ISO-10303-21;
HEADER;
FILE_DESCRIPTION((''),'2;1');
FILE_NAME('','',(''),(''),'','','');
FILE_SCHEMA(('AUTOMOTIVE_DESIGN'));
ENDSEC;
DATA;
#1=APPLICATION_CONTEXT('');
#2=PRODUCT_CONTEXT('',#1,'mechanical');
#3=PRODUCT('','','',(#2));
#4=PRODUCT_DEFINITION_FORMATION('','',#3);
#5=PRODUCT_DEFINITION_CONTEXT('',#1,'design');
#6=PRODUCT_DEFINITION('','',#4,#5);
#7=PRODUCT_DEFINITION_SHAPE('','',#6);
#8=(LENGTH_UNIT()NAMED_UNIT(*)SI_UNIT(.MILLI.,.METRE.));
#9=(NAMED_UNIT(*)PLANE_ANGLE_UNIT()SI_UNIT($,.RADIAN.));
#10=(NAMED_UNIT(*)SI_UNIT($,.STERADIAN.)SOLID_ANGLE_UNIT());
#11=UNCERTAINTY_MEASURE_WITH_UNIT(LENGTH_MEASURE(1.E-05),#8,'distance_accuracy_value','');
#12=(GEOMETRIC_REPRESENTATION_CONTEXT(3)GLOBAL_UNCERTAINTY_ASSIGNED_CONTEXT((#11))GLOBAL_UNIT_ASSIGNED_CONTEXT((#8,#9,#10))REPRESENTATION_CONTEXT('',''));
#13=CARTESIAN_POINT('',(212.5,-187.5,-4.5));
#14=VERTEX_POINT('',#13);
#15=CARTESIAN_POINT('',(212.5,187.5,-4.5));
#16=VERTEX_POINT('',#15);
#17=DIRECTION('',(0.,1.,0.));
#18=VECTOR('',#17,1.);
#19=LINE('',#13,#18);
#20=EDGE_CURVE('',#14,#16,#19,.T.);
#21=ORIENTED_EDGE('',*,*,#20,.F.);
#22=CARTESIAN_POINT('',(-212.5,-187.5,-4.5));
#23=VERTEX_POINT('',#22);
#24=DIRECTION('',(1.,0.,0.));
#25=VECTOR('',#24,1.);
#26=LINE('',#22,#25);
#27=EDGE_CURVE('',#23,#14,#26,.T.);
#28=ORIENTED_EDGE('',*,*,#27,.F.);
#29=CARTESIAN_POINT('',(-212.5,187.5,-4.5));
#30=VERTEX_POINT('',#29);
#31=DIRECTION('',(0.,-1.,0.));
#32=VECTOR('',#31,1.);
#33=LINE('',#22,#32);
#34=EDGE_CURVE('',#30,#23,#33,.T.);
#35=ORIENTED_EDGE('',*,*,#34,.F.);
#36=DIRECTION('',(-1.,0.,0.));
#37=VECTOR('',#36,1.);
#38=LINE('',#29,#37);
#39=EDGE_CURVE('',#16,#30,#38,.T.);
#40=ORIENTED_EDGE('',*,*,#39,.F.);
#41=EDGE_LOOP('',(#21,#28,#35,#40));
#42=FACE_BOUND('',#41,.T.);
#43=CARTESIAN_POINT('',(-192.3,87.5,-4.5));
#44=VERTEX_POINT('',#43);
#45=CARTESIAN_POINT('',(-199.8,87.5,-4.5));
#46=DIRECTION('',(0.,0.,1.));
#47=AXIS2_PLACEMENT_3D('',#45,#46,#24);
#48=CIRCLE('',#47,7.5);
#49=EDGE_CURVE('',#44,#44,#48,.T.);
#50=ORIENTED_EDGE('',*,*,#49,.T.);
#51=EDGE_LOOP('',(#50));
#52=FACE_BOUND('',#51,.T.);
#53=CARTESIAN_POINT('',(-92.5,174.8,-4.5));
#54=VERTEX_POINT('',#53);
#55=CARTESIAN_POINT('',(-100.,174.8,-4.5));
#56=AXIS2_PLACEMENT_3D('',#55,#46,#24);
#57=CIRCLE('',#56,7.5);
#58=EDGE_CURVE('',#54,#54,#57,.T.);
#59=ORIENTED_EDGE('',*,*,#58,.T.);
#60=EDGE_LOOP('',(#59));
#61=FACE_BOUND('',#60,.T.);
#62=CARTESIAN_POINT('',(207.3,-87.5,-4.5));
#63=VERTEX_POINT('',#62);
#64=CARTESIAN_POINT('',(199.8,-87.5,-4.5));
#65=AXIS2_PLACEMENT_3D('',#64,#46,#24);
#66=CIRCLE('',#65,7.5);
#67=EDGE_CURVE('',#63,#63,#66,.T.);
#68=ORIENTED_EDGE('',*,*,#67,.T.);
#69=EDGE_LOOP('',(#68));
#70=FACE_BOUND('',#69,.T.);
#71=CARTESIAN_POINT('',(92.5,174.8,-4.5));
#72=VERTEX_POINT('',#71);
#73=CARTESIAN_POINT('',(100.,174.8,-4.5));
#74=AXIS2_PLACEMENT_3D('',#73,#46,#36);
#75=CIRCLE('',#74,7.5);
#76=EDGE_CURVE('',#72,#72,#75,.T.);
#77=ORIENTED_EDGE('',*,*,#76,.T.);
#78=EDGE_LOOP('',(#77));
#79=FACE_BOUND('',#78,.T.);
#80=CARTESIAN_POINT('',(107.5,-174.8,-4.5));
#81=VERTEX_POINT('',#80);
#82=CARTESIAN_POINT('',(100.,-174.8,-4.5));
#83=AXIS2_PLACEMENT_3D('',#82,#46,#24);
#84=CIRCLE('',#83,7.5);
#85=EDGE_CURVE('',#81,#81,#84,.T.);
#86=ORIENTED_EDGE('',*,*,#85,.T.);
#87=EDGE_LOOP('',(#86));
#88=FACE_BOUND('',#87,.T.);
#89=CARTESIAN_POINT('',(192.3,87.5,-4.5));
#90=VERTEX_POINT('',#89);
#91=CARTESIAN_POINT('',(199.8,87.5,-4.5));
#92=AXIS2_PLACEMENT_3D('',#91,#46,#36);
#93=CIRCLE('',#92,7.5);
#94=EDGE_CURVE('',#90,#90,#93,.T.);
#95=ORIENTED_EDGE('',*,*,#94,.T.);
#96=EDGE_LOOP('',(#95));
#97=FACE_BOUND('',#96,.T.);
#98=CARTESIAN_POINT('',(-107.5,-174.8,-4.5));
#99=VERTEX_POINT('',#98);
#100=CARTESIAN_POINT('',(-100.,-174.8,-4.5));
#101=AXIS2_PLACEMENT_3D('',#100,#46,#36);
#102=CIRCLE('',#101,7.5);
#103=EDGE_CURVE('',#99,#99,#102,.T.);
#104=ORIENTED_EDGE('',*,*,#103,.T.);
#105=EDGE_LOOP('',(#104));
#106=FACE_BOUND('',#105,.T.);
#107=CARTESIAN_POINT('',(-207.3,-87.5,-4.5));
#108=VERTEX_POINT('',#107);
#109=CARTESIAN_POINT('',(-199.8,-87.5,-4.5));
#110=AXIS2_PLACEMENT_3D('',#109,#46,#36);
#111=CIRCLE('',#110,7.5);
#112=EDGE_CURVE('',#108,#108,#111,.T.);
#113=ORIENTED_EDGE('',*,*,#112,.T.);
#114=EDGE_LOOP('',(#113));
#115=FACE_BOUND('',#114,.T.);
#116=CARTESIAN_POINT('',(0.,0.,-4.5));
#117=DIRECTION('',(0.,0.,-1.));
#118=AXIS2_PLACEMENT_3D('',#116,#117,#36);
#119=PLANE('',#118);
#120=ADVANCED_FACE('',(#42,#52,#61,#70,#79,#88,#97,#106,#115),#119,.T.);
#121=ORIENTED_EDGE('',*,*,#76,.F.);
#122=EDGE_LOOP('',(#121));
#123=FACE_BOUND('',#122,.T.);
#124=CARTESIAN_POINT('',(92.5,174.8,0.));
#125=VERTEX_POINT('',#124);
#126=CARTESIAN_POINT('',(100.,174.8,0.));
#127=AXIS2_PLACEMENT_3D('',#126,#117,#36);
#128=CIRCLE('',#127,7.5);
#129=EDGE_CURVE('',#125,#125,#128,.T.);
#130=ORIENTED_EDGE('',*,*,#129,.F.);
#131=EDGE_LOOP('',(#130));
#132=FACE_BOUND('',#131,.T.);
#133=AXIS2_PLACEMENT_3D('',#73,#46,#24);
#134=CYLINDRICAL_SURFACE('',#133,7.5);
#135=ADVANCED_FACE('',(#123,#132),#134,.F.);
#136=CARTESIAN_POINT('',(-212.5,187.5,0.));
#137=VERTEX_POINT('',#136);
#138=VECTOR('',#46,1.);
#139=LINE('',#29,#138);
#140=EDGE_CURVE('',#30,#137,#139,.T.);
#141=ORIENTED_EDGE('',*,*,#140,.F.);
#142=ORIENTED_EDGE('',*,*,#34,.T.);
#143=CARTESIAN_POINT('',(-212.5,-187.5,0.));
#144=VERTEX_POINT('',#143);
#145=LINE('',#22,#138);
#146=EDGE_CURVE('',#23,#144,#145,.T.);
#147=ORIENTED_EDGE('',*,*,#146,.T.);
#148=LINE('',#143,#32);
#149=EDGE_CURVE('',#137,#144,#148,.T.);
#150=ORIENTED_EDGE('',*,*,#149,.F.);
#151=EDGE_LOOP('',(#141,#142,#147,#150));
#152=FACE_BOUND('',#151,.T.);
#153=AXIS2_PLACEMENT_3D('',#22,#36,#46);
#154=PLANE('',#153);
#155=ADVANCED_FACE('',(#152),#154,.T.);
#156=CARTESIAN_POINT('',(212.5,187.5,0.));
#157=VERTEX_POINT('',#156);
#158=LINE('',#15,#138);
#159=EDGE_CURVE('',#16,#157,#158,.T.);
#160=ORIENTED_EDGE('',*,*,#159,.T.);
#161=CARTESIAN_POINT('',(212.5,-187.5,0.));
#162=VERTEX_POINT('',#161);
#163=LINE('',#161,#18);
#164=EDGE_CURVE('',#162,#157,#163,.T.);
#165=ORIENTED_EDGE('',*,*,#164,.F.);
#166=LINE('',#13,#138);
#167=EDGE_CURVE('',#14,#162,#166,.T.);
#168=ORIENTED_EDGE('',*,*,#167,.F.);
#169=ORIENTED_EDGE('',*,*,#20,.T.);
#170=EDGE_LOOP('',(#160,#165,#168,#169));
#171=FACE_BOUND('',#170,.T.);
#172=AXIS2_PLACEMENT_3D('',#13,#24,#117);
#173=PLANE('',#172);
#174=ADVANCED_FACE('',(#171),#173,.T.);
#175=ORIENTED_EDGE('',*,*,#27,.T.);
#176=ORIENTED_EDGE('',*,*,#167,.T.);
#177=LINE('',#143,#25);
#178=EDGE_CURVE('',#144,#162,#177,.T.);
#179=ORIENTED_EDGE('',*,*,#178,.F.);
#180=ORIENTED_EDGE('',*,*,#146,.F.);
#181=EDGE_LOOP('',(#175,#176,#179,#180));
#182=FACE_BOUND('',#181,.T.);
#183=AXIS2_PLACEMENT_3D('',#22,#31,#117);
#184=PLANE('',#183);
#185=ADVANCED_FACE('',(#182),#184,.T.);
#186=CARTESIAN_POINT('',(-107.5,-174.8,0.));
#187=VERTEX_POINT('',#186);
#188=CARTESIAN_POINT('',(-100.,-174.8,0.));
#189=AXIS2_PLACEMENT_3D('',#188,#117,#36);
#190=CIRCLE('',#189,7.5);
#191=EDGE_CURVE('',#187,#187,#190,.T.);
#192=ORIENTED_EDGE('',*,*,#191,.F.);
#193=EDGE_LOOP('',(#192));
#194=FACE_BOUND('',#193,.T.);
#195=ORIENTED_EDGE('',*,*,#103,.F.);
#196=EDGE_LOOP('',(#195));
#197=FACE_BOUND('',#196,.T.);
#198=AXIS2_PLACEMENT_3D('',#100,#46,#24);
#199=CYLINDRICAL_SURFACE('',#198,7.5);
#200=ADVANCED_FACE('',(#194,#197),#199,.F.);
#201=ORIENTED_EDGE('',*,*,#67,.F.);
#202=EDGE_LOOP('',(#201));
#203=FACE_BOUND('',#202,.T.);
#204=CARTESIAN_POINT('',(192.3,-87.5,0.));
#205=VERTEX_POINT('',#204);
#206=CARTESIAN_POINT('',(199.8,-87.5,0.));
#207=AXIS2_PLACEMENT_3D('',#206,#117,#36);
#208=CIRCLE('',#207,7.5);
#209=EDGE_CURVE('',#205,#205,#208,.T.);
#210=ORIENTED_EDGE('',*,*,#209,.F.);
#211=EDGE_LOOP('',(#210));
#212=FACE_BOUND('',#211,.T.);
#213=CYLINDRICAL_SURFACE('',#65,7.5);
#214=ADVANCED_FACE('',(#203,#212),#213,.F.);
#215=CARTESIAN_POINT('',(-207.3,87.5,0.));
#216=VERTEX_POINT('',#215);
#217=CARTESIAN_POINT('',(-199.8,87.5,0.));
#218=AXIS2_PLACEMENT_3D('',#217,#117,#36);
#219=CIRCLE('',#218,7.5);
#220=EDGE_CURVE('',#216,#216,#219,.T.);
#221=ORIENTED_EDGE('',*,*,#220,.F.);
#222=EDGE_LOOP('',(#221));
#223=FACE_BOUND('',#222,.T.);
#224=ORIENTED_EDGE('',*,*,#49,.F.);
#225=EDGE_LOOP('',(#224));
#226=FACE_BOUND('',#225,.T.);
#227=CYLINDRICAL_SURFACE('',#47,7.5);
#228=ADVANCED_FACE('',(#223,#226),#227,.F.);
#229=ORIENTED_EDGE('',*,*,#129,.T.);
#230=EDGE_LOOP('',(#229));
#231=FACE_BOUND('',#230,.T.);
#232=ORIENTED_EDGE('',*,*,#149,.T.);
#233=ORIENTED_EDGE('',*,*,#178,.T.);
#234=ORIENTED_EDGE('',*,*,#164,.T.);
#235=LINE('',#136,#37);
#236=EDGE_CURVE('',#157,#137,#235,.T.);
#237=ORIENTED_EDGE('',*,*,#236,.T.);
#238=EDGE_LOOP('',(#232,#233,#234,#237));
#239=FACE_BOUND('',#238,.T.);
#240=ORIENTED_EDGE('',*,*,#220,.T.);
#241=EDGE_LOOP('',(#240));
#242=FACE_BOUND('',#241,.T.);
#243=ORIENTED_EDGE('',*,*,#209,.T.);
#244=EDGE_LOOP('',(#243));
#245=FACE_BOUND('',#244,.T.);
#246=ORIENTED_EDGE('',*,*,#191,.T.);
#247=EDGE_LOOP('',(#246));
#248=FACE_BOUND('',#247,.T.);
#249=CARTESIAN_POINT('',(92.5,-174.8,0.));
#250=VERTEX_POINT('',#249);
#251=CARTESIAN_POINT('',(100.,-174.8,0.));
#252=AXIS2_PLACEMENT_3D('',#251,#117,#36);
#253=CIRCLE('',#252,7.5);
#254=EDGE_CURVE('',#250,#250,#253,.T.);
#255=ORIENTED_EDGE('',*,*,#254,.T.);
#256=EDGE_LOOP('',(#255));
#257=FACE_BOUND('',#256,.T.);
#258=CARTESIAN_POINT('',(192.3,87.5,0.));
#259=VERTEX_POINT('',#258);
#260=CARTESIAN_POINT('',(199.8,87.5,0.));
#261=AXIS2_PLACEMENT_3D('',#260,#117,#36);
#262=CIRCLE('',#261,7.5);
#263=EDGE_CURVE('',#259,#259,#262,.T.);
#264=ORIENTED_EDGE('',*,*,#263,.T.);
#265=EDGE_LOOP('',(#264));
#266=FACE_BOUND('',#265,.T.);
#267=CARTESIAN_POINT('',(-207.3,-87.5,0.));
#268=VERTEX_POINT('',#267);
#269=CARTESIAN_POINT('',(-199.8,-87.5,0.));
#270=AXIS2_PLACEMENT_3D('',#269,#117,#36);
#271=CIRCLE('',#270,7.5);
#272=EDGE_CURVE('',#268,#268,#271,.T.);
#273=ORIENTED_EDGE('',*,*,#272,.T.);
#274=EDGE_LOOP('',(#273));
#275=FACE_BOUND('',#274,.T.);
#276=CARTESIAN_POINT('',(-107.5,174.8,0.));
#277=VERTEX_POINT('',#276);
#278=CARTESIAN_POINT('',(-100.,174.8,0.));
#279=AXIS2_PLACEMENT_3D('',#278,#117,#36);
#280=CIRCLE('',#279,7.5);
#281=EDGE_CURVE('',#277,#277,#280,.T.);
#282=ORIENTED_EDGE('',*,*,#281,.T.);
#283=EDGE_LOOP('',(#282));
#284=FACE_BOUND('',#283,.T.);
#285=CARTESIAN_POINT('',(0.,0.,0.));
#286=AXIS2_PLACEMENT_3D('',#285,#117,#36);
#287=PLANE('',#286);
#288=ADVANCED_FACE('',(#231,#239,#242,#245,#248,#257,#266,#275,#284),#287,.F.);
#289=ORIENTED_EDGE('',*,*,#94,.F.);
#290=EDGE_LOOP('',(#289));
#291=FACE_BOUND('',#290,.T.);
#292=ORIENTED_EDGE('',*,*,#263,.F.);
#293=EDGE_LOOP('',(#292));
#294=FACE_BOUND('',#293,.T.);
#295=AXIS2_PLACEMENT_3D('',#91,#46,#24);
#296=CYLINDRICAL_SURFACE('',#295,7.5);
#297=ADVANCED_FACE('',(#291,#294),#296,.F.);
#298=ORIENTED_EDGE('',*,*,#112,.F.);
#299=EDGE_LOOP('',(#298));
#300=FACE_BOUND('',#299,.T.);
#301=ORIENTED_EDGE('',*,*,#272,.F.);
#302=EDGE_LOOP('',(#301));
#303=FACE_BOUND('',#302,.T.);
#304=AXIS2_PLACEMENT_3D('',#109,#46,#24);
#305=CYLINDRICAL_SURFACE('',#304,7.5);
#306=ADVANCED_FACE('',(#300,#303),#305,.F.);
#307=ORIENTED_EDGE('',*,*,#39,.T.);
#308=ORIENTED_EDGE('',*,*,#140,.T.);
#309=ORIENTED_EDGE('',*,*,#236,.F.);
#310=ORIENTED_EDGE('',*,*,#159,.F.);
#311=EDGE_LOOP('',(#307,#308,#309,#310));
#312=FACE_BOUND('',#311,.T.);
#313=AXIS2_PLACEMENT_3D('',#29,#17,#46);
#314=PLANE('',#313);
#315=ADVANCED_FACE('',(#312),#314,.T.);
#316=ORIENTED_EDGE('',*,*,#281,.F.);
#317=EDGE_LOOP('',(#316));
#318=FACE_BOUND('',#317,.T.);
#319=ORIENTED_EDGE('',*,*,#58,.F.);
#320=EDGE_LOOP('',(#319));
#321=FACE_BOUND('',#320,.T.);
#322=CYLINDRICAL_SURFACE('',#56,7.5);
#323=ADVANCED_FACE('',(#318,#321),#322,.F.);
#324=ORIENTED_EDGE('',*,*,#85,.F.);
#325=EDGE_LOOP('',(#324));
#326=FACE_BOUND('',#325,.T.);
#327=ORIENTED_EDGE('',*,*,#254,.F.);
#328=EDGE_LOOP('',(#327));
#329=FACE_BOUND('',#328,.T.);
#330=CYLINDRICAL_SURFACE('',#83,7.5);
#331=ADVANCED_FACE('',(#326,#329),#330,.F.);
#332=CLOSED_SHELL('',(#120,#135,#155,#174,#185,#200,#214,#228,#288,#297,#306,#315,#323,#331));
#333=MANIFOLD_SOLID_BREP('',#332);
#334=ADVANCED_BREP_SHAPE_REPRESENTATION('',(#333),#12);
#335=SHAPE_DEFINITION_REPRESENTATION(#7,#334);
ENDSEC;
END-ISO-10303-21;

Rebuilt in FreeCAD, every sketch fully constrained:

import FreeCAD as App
import Part
import Sketcher
from FreeCAD import Vector

doc = App.newDocument("Part")
body = doc.addObject("PartDesign::Body", "Body")

sketch1 = body.newObject("Sketcher::SketchObject", "Sketch")
sketch1.AttachmentSupport = (doc.getObject("XY_Plane"), [""])
sketch1.MapMode = "FlatFace"
sketch1.addGeometry(Part.LineSegment(Vector(-212, 188, 0), Vector(-212, -188, 0)), False)
sketch1.addGeometry(Part.LineSegment(Vector(-212, -188, 0), Vector(212, -188, 0)), False)
sketch1.addGeometry(Part.LineSegment(Vector(212, -188, 0), Vector(212, 188, 0)), False)
sketch1.addGeometry(Part.LineSegment(Vector(212, 188, 0), Vector(-212, 188, 0)), False)
sketch1.addConstraint(Sketcher.Constraint("Coincident", 0, 2, 1, 1))
sketch1.addConstraint(Sketcher.Constraint("Coincident", 1, 2, 2, 1))
sketch1.addConstraint(Sketcher.Constraint("Coincident", 2, 2, 3, 1))
sketch1.addConstraint(Sketcher.Constraint("Coincident", 3, 2, 0, 1))
sketch1.addConstraint(Sketcher.Constraint("Vertical", 0))
sketch1.addConstraint(Sketcher.Constraint("Horizontal", 1))
sketch1.addConstraint(Sketcher.Constraint("Vertical", 2))
sketch1.addConstraint(Sketcher.Constraint("Horizontal", 3))
sketch1.addConstraint(Sketcher.Constraint("Symmetric", 0, 2, 2, 2, -1, 1))
sketch1.addConstraint(Sketcher.Constraint("DistanceX", 1, 1, 1, 2, 425.0))
sketch1.addConstraint(Sketcher.Constraint("DistanceY", 0, 2, 0, 1, 375.0))
pad1 = body.newObject("PartDesign::Pad", "Pad")
pad1.Profile = sketch1
pad1.Length = 4.5
pad1.Reversed = True

sketch2 = body.newObject("Sketcher::SketchObject", "Sketch001")
sketch2.AttachmentSupport = (doc.getObject("XY_Plane"), [""])
sketch2.MapMode = "FlatFace"
sketch2.addGeometry(Part.Circle(Vector(-200, 88, 0), Vector(0, 0, 1), 8), False)
sketch2.addGeometry(Part.Circle(Vector(-100, 175, 0), Vector(0, 0, 1), 8), False)
sketch2.addGeometry(Part.Circle(Vector(100, 175, 0), Vector(0, 0, 1), 8), False)
sketch2.addGeometry(Part.Circle(Vector(200, 88, 0), Vector(0, 0, 1), 8), False)
sketch2.addGeometry(Part.Circle(Vector(-100, -175, 0), Vector(0, 0, 1), 8), False)
sketch2.addGeometry(Part.Circle(Vector(-200, -88, 0), Vector(0, 0, 1), 8), False)
sketch2.addGeometry(Part.Circle(Vector(200, -88, 0), Vector(0, 0, 1), 8), False)
sketch2.addGeometry(Part.Circle(Vector(100, -175, 0), Vector(0, 0, 1), 8), False)
sketch2.addConstraint(Sketcher.Constraint("Equal", 0, 1))
sketch2.addConstraint(Sketcher.Constraint("Equal", 1, 2))
sketch2.addConstraint(Sketcher.Constraint("Equal", 2, 3))
sketch2.addConstraint(Sketcher.Constraint("Equal", 3, 4))
sketch2.addConstraint(Sketcher.Constraint("Equal", 4, 5))
sketch2.addConstraint(Sketcher.Constraint("Equal", 5, 6))
sketch2.addConstraint(Sketcher.Constraint("Equal", 6, 7))
sketch2.addConstraint(Sketcher.Constraint("Symmetric", 2, 3, 4, 3, -1, 1))
sketch2.addConstraint(Sketcher.Constraint("Symmetric", 3, 3, 5, 3, -1, 1))
sketch2.addConstraint(Sketcher.Constraint("Symmetric", 0, 3, 6, 3, -1, 1))
sketch2.addConstraint(Sketcher.Constraint("Symmetric", 1, 3, 7, 3, -1, 1))
sketch2.addConstraint(Sketcher.Constraint("Symmetric", 1, 3, 2, 3, -2))
sketch2.addConstraint(Sketcher.Constraint("Symmetric", 0, 3, 3, 3, -2))
sketch2.addConstraint(Sketcher.Constraint("Diameter", 0, 15.0))
sketch2.addConstraint(Sketcher.Constraint("DistanceX", 1, 3, -1, 1, 100.0))
sketch2.addConstraint(Sketcher.Constraint("DistanceY", 5, 3, 0, 3, 175.0))
sketch2.addConstraint(Sketcher.Constraint("DistanceX", 0, 3, -1, 1, 199.8))
sketch2.addConstraint(Sketcher.Constraint("DistanceY", -1, 1, 1, 3, 174.8))
pocket1 = body.newObject("PartDesign::Pocket", "Pocket")
pocket1.Profile = sketch2
pocket1.Type = "ThroughAll"
pocket1.Midplane = True

doc.recompute()
